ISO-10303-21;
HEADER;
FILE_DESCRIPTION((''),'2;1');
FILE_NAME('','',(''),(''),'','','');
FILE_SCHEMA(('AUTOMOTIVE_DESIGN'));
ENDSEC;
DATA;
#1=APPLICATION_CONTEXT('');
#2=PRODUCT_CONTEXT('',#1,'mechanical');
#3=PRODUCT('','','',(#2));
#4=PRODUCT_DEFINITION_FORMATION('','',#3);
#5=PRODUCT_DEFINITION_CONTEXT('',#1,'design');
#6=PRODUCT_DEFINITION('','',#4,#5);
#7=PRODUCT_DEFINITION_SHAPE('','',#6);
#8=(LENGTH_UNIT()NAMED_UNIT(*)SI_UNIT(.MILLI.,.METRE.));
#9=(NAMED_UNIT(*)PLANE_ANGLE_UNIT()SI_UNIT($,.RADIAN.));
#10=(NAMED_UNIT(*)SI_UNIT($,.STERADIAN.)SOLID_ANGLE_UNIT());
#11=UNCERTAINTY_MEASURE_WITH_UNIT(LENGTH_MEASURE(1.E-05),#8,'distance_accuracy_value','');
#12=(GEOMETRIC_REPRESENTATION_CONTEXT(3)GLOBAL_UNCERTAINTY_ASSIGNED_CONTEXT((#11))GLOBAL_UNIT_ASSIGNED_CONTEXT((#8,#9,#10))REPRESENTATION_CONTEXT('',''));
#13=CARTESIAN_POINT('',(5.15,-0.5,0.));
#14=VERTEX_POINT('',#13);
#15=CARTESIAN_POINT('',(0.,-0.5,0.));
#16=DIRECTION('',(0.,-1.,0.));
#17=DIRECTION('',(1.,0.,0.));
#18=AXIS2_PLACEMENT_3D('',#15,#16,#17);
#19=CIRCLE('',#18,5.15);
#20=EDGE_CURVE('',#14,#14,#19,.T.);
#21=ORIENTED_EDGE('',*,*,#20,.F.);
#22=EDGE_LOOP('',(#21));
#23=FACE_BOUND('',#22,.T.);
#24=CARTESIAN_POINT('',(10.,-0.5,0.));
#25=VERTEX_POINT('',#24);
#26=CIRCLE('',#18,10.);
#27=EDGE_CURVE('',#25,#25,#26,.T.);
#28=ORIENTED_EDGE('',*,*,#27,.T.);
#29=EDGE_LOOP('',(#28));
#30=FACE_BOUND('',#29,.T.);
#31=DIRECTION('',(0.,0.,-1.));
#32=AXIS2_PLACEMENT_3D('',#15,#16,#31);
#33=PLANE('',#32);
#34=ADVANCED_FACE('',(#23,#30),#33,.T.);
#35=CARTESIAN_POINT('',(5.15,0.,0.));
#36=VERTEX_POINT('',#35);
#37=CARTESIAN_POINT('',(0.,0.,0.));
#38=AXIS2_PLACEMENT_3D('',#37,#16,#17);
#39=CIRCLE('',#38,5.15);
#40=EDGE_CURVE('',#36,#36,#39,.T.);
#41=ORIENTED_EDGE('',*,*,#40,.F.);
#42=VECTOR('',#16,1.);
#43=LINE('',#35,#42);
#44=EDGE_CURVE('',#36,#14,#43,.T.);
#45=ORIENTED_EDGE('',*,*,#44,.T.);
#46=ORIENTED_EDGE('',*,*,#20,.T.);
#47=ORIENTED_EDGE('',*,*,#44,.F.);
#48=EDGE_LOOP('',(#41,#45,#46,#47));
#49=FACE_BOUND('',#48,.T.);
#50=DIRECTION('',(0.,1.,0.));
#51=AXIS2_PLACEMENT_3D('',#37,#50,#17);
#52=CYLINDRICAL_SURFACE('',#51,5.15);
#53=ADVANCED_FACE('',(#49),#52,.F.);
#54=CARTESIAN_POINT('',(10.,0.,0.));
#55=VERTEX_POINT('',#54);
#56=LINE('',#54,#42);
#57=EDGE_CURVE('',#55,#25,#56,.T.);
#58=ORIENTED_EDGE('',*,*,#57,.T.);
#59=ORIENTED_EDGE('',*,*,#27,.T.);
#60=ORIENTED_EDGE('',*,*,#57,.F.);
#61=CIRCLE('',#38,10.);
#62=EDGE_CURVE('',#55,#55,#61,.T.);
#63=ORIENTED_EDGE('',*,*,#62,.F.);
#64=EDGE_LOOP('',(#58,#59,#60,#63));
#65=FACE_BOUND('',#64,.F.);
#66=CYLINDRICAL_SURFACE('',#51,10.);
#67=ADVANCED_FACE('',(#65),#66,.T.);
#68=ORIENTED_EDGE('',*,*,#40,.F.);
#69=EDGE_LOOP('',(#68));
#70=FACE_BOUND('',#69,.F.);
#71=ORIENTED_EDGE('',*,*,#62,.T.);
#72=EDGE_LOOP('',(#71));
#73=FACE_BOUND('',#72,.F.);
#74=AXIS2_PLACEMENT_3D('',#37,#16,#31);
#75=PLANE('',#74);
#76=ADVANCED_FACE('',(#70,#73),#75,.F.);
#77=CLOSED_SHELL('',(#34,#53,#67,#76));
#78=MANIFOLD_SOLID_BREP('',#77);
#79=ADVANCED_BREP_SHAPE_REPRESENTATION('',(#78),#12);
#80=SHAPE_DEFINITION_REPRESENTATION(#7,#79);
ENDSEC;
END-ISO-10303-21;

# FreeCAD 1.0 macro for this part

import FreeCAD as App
import Part
import Sketcher

V = App.Vector

doc = App.newDocument("Part")
body = doc.addObject("PartDesign::Body", "Body")

# Sketch on XZ plane
sketch1 = doc.addObject("Sketcher::SketchObject", "Sketch")
body.addObject(sketch1)
sketch1.AttachmentSupport = (doc.XZ_Plane, [""])
sketch1.MapMode = "FlatFace"
sketch1.addGeometry(Part.Circle(V(0, 0, 0), V(0, 0, 1), 10), False)
sketch1.addGeometry(Part.Circle(V(0, 0, 0), V(0, 0, 1), 5), False)
sketch1.addConstraint(Sketcher.Constraint("Coincident", 0, 3, -1, 1))
sketch1.addConstraint(Sketcher.Constraint("Coincident", 1, 3, -1, 1))
sketch1.addConstraint(Sketcher.Constraint("Diameter", 0, 20.0))
sketch1.addConstraint(Sketcher.Constraint("Diameter", 1, 10.3))
pad1 = doc.addObject("PartDesign::Pad", "Pad")
body.addObject(pad1)
pad1.Profile = sketch1
pad1.Length = 0.5

doc.recompute()
